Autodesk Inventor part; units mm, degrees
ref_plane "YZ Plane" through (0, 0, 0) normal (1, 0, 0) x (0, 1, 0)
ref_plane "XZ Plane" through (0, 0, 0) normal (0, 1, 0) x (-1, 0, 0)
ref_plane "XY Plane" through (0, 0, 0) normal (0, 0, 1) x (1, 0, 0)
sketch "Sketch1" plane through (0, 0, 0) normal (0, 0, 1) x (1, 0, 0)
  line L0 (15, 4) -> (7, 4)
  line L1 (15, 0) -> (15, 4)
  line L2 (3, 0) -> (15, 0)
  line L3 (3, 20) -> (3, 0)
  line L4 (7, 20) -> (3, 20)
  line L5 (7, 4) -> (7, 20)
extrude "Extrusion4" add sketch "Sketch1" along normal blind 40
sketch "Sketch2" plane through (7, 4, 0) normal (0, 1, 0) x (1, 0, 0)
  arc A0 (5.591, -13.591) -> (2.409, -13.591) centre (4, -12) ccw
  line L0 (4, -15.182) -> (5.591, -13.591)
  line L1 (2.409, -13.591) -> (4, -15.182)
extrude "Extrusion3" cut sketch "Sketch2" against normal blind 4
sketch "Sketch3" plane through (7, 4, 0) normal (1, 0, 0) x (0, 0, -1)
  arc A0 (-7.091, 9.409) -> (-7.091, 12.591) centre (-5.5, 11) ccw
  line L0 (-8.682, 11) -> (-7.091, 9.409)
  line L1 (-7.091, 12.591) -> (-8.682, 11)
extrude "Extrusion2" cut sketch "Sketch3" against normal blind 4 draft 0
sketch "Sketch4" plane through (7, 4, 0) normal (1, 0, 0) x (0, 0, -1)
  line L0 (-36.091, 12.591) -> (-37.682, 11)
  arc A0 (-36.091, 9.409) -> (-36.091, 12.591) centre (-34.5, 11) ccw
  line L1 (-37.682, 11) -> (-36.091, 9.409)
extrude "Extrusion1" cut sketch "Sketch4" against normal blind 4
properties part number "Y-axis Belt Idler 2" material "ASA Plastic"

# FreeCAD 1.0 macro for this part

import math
import FreeCAD as App
import Part
import Sketcher

V = App.Vector
Q = App.Units.Quantity

doc = App.newDocument("Part")
body = doc.addObject("PartDesign::Body", "Body")

# Sketch on XY plane
sketch1 = body.newObject("Sketcher::SketchObject", "Sketch")
sketch1.AttachmentSupport = (doc.getObject("XY_Plane"), [""])
sketch1.MapMode = "FlatFace"
sketch1.addGeometry(Part.LineSegment(V(15, 0, 0), V(15, 4, 0)), False)
sketch1.addGeometry(Part.LineSegment(V(15, 4, 0), V(7, 4, 0)), False)
sketch1.addGeometry(Part.LineSegment(V(7, 4, 0), V(7, 20, 0)), False)
sketch1.addGeometry(Part.LineSegment(V(7, 20, 0), V(3, 20, 0)), False)
sketch1.addGeometry(Part.LineSegment(V(3, 20, 0), V(3, 0, 0)), False)
sketch1.addGeometry(Part.LineSegment(V(3, 0, 0), V(15, 0, 0)), False)
sketch1.addConstraint(Sketcher.Constraint("Coincident", 0, 2, 1, 1))
sketch1.addConstraint(Sketcher.Constraint("Coincident", 1, 2, 2, 1))
sketch1.addConstraint(Sketcher.Constraint("Coincident", 2, 2, 3, 1))
sketch1.addConstraint(Sketcher.Constraint("Coincident", 3, 2, 4, 1))
sketch1.addConstraint(Sketcher.Constraint("Coincident", 4, 2, 5, 1))
sketch1.addConstraint(Sketcher.Constraint("Coincident", 5, 2, 0, 1))
sketch1.addConstraint(Sketcher.Constraint("Vertical", 0))
sketch1.addConstraint(Sketcher.Constraint("Horizontal", 1))
sketch1.addConstraint(Sketcher.Constraint("Vertical", 2))
sketch1.addConstraint(Sketcher.Constraint("Horizontal", 3))
sketch1.addConstraint(Sketcher.Constraint("Vertical", 4))
sketch1.addConstraint(Sketcher.Constraint("Horizontal", 5))
sketch1.addConstraint(Sketcher.Constraint("PointOnObject", 4, 2, -1))
sketch1.addConstraint(Sketcher.Constraint("Equal", 3, 0))
sketch1.addConstraint(Sketcher.Constraint("DistanceX", 1, 2, 1, 1, Q("8 mm")))
sketch1.addConstraint(Sketcher.Constraint("DistanceX", 3, 2, 3, 1, Q("4 mm")))
sketch1.addConstraint(Sketcher.Constraint("DistanceY", 2, 1, 2, 2, Q("16 mm")))
sketch1.addConstraint(Sketcher.Constraint("DistanceX", -1, 1, 0, 2, Q("15 mm")))
pad1 = body.newObject("PartDesign::Pad", "Pad")
pad1.Profile = sketch1
pad1.Length = 40

# Sketch on XZ plane
sketch2 = body.newObject("Sketcher::SketchObject", "Sketch001")
sketch2.AttachmentSupport = (doc.getObject("XZ_Plane"), [""])
sketch2.MapMode = "FlatFace"
sketch2.AttachmentOffset = App.Placement(V(0, 0, -4), App.Rotation())
sketch2.addGeometry(Part.LineSegment(V(11, 15.182, 0), V(12.591, 13.591, 0)), False)
sketch2.addGeometry(Part.ArcOfCircle(Part.Circle(V(11, 12, 0), V(0, 0, 1), 2.250014), math.radians(135), math.radians(405)), False)
sketch2.addGeometry(Part.LineSegment(V(9.409, 13.591, 0), V(11, 15.182, 0)), False)
sketch2.addConstraint(Sketcher.Constraint("Tangent", 0, 2, 1, 2))
sketch2.addConstraint(Sketcher.Constraint("Tangent", 1, 1, 2, 1))
sketch2.addConstraint(Sketcher.Constraint("Coincident", 2, 2, 0, 1))
sketch2.addConstraint(Sketcher.Constraint("Perpendicular", 0, 2))
sketch2.addConstraint(Sketcher.Constraint("Horizontal", 0, 2, 1, 1))
sketch2.addConstraint(Sketcher.Constraint("Radius", 1, Q("2.25 mm")))
sketch2.addConstraint(Sketcher.Constraint("DistanceX", -1, 1, 1, 3, Q("11 mm")))
sketch2.addConstraint(Sketcher.Constraint("DistanceY", -1, 1, 1, 3, Q("12 mm")))
pocket1 = body.newObject("PartDesign::Pocket", "Pocket")
pocket1.Profile = sketch2
pocket1.Length = 4
pocket1.Reversed = True

# Sketch on YZ plane
sketch3 = body.newObject("Sketcher::SketchObject", "Sketch002")
sketch3.AttachmentSupport = (doc.getObject("YZ_Plane"), [""])
sketch3.MapMode = "FlatFace"
sketch3.AttachmentOffset = App.Placement(V(0, 0, 7), App.Rotation())
sketch3.addGeometry(Part.LineSegment(V(15, 8.682, 0), V(13.409, 7.091, 0)), False)
sketch3.addGeometry(Part.ArcOfCircle(Part.Circle(V(15, 5.5, 0), V(0, 0, 1), 2.250014), math.radians(135), math.radians(405)), False)
sketch3.addGeometry(Part.LineSegment(V(16.591, 7.091, 0), V(15, 8.682, 0)), False)
sketch3.addConstraint(Sketcher.Constraint("Tangent", 0, 2, 1, 1))
sketch3.addConstraint(Sketcher.Constraint("Tangent", 1, 2, 2, 1))
sketch3.addConstraint(Sketcher.Constraint("Coincident", 2, 2, 0, 1))
sketch3.addConstraint(Sketcher.Constraint("Perpendicular", 0, 2))
sketch3.addConstraint(Sketcher.Constraint("Horizontal", 0, 2, 1, 2))
sketch3.addConstraint(Sketcher.Constraint("Radius", 1, Q("2.25 mm")))
sketch3.addConstraint(Sketcher.Constraint("DistanceX", -1, 1, 1, 3, Q("15 mm")))
sketch3.addConstraint(Sketcher.Constraint("DistanceY", -1, 1, 1, 3, Q("5.5 mm")))
pocket2 = body.newObject("PartDesign::Pocket", "Pocket001")
pocket2.Profile = sketch3
pocket2.Length = 4

# Sketch on YZ plane
sketch4 = body.newObject("Sketcher::SketchObject", "Sketch003")
sketch4.AttachmentSupport = (doc.getObject("YZ_Plane"), [""])
sketch4.MapMode = "FlatFace"
sketch4.AttachmentOffset = App.Placement(V(0, 0, 7), App.Rotation())
sketch4.addGeometry(Part.ArcOfCircle(Part.Circle(V(15, 34.5, 0), V(0, 0, 1), 2.250014), math.radians(135), math.radians(405)), False)
sketch4.addGeometry(Part.LineSegment(V(16.591, 36.091, 0), V(15, 37.682, 0)), False)
sketch4.addGeometry(Part.LineSegment(V(15, 37.682, 0), V(13.409, 36.091, 0)), False)
sketch4.addConstraint(Sketcher.Constraint("Tangent", 0, 2, 1, 1))
sketch4.addConstraint(Sketcher.Constraint("Coincident", 1, 2, 2, 1))
sketch4.addConstraint(Sketcher.Constraint("Tangent", 2, 2, 0, 1))
sketch4.addConstraint(Sketcher.Constraint("Perpendicular", 1, 2))
sketch4.addConstraint(Sketcher.Constraint("Horizontal", 0, 2, 2, 2))
sketch4.addConstraint(Sketcher.Constraint("Radius", 0, Q("2.25 mm")))
sketch4.addConstraint(Sketcher.Constraint("DistanceX", -1, 1, 0, 3, Q("15 mm")))
sketch4.addConstraint(Sketcher.Constraint("DistanceY", -1, 1, 0, 3, Q("34.5 mm")))
pocket3 = body.newObject("PartDesign::Pocket", "Pocket002")
pocket3.Profile = sketch4
pocket3.Length = 4

doc.recompute()
